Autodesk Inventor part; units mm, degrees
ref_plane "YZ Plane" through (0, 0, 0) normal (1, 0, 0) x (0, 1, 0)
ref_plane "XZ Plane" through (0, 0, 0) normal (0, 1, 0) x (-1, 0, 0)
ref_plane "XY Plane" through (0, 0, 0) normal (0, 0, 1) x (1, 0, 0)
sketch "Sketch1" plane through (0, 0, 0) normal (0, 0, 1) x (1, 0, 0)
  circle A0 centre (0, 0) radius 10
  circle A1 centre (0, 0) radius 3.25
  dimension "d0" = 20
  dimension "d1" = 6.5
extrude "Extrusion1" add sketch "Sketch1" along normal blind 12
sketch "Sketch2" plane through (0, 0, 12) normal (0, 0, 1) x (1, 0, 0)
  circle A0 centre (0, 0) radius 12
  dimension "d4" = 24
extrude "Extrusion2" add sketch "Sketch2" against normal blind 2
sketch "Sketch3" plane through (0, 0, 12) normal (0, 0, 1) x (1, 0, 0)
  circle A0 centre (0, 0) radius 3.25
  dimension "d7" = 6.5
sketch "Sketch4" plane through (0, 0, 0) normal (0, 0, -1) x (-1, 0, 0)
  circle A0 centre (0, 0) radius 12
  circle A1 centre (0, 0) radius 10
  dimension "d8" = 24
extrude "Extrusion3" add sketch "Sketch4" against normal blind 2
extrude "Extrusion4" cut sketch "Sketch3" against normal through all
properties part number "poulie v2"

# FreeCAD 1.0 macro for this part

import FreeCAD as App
import Part
import Sketcher

V = App.Vector
Q = App.Units.Quantity

doc = App.newDocument("Part")
body = doc.addObject("PartDesign::Body", "Body")

sketch1 = body.newObject("Sketcher::SketchObject", "Sketch")
sketch1.AttachmentSupport = (doc.getObject("XY_Plane"), [""])
sketch1.MapMode = "FlatFace"
sketch1.addGeometry([
    Part.Circle(V(0, 0, 0), V(0, 0, 1), 10),
    Part.Circle(V(0, 0, 0), V(0, 0, 1), 3.2),
], False)
sketch1.addConstraint([
    Sketcher.Constraint("Coincident", 0, 3, -1, 1),
    Sketcher.Constraint("Coincident", 1, 3, -1, 1),
    Sketcher.Constraint("Diameter", 0, Q("20 mm")),
    Sketcher.Constraint("Diameter", 1, Q("6.5 mm")),
])
pad1 = body.newObject("PartDesign::Pad", "Pad")
pad1.Profile = sketch1
pad1.Length = 12

sketch2 = body.newObject("Sketcher::SketchObject", "Sketch001")
sketch2.AttachmentSupport = (doc.getObject("XY_Plane"), [""])
sketch2.MapMode = "FlatFace"
sketch2.AttachmentOffset = App.Placement(V(0, 0, 12), App.Rotation())
sketch2.addGeometry(Part.Circle(V(0, 0, 0), V(0, 0, 1), 12), False)
sketch2.addConstraint([
    Sketcher.Constraint("Coincident", 0, 3, -1, 1),
    Sketcher.Constraint("Diameter", 0, Q("24 mm")),
])
pad2 = body.newObject("PartDesign::Pad", "Pad001")
pad2.Profile = sketch2
pad2.Length = 2
pad2.Reversed = True

sketch3 = body.newObject("Sketcher::SketchObject", "Sketch002")
sketch3.AttachmentSupport = (doc.getObject("XY_Plane"), [""])
sketch3.MapMode = "FlatFace"
sketch3.addGeometry([
    Part.Circle(V(0, 0, 0), V(0, 0, 1), 12),
    Part.Circle(V(0, 0, 0), V(0, 0, 1), 10),
], False)
sketch3.addConstraint([
    Sketcher.Constraint("Coincident", 0, 3, -1, 1),
    Sketcher.Constraint("Coincident", 1, 3, -1, 1),
    Sketcher.Constraint("Diameter", 0, Q("24 mm")),
    Sketcher.Constraint("Diameter", 1, Q("20 mm")),
])
pad3 = body.newObject("PartDesign::Pad", "Pad002")
pad3.Profile = sketch3
pad3.Length = 2

sketch4 = body.newObject("Sketcher::SketchObject", "Sketch003")
sketch4.AttachmentSupport = (doc.getObject("XY_Plane"), [""])
sketch4.MapMode = "FlatFace"
sketch4.AttachmentOffset = App.Placement(V(0, 0, 12), App.Rotation())
sketch4.addGeometry(Part.Circle(V(0, 0, 0), V(0, 0, 1), 3.2), False)
sketch4.addConstraint([
    Sketcher.Constraint("Coincident", 0, 3, -1, 1),
    Sketcher.Constraint("Diameter", 0, Q("6.5 mm")),
])
pocket1 = body.newObject("PartDesign::Pocket", "Pocket")
pocket1.Profile = sketch4
pocket1.Type = "ThroughAll"

doc.recompute()
